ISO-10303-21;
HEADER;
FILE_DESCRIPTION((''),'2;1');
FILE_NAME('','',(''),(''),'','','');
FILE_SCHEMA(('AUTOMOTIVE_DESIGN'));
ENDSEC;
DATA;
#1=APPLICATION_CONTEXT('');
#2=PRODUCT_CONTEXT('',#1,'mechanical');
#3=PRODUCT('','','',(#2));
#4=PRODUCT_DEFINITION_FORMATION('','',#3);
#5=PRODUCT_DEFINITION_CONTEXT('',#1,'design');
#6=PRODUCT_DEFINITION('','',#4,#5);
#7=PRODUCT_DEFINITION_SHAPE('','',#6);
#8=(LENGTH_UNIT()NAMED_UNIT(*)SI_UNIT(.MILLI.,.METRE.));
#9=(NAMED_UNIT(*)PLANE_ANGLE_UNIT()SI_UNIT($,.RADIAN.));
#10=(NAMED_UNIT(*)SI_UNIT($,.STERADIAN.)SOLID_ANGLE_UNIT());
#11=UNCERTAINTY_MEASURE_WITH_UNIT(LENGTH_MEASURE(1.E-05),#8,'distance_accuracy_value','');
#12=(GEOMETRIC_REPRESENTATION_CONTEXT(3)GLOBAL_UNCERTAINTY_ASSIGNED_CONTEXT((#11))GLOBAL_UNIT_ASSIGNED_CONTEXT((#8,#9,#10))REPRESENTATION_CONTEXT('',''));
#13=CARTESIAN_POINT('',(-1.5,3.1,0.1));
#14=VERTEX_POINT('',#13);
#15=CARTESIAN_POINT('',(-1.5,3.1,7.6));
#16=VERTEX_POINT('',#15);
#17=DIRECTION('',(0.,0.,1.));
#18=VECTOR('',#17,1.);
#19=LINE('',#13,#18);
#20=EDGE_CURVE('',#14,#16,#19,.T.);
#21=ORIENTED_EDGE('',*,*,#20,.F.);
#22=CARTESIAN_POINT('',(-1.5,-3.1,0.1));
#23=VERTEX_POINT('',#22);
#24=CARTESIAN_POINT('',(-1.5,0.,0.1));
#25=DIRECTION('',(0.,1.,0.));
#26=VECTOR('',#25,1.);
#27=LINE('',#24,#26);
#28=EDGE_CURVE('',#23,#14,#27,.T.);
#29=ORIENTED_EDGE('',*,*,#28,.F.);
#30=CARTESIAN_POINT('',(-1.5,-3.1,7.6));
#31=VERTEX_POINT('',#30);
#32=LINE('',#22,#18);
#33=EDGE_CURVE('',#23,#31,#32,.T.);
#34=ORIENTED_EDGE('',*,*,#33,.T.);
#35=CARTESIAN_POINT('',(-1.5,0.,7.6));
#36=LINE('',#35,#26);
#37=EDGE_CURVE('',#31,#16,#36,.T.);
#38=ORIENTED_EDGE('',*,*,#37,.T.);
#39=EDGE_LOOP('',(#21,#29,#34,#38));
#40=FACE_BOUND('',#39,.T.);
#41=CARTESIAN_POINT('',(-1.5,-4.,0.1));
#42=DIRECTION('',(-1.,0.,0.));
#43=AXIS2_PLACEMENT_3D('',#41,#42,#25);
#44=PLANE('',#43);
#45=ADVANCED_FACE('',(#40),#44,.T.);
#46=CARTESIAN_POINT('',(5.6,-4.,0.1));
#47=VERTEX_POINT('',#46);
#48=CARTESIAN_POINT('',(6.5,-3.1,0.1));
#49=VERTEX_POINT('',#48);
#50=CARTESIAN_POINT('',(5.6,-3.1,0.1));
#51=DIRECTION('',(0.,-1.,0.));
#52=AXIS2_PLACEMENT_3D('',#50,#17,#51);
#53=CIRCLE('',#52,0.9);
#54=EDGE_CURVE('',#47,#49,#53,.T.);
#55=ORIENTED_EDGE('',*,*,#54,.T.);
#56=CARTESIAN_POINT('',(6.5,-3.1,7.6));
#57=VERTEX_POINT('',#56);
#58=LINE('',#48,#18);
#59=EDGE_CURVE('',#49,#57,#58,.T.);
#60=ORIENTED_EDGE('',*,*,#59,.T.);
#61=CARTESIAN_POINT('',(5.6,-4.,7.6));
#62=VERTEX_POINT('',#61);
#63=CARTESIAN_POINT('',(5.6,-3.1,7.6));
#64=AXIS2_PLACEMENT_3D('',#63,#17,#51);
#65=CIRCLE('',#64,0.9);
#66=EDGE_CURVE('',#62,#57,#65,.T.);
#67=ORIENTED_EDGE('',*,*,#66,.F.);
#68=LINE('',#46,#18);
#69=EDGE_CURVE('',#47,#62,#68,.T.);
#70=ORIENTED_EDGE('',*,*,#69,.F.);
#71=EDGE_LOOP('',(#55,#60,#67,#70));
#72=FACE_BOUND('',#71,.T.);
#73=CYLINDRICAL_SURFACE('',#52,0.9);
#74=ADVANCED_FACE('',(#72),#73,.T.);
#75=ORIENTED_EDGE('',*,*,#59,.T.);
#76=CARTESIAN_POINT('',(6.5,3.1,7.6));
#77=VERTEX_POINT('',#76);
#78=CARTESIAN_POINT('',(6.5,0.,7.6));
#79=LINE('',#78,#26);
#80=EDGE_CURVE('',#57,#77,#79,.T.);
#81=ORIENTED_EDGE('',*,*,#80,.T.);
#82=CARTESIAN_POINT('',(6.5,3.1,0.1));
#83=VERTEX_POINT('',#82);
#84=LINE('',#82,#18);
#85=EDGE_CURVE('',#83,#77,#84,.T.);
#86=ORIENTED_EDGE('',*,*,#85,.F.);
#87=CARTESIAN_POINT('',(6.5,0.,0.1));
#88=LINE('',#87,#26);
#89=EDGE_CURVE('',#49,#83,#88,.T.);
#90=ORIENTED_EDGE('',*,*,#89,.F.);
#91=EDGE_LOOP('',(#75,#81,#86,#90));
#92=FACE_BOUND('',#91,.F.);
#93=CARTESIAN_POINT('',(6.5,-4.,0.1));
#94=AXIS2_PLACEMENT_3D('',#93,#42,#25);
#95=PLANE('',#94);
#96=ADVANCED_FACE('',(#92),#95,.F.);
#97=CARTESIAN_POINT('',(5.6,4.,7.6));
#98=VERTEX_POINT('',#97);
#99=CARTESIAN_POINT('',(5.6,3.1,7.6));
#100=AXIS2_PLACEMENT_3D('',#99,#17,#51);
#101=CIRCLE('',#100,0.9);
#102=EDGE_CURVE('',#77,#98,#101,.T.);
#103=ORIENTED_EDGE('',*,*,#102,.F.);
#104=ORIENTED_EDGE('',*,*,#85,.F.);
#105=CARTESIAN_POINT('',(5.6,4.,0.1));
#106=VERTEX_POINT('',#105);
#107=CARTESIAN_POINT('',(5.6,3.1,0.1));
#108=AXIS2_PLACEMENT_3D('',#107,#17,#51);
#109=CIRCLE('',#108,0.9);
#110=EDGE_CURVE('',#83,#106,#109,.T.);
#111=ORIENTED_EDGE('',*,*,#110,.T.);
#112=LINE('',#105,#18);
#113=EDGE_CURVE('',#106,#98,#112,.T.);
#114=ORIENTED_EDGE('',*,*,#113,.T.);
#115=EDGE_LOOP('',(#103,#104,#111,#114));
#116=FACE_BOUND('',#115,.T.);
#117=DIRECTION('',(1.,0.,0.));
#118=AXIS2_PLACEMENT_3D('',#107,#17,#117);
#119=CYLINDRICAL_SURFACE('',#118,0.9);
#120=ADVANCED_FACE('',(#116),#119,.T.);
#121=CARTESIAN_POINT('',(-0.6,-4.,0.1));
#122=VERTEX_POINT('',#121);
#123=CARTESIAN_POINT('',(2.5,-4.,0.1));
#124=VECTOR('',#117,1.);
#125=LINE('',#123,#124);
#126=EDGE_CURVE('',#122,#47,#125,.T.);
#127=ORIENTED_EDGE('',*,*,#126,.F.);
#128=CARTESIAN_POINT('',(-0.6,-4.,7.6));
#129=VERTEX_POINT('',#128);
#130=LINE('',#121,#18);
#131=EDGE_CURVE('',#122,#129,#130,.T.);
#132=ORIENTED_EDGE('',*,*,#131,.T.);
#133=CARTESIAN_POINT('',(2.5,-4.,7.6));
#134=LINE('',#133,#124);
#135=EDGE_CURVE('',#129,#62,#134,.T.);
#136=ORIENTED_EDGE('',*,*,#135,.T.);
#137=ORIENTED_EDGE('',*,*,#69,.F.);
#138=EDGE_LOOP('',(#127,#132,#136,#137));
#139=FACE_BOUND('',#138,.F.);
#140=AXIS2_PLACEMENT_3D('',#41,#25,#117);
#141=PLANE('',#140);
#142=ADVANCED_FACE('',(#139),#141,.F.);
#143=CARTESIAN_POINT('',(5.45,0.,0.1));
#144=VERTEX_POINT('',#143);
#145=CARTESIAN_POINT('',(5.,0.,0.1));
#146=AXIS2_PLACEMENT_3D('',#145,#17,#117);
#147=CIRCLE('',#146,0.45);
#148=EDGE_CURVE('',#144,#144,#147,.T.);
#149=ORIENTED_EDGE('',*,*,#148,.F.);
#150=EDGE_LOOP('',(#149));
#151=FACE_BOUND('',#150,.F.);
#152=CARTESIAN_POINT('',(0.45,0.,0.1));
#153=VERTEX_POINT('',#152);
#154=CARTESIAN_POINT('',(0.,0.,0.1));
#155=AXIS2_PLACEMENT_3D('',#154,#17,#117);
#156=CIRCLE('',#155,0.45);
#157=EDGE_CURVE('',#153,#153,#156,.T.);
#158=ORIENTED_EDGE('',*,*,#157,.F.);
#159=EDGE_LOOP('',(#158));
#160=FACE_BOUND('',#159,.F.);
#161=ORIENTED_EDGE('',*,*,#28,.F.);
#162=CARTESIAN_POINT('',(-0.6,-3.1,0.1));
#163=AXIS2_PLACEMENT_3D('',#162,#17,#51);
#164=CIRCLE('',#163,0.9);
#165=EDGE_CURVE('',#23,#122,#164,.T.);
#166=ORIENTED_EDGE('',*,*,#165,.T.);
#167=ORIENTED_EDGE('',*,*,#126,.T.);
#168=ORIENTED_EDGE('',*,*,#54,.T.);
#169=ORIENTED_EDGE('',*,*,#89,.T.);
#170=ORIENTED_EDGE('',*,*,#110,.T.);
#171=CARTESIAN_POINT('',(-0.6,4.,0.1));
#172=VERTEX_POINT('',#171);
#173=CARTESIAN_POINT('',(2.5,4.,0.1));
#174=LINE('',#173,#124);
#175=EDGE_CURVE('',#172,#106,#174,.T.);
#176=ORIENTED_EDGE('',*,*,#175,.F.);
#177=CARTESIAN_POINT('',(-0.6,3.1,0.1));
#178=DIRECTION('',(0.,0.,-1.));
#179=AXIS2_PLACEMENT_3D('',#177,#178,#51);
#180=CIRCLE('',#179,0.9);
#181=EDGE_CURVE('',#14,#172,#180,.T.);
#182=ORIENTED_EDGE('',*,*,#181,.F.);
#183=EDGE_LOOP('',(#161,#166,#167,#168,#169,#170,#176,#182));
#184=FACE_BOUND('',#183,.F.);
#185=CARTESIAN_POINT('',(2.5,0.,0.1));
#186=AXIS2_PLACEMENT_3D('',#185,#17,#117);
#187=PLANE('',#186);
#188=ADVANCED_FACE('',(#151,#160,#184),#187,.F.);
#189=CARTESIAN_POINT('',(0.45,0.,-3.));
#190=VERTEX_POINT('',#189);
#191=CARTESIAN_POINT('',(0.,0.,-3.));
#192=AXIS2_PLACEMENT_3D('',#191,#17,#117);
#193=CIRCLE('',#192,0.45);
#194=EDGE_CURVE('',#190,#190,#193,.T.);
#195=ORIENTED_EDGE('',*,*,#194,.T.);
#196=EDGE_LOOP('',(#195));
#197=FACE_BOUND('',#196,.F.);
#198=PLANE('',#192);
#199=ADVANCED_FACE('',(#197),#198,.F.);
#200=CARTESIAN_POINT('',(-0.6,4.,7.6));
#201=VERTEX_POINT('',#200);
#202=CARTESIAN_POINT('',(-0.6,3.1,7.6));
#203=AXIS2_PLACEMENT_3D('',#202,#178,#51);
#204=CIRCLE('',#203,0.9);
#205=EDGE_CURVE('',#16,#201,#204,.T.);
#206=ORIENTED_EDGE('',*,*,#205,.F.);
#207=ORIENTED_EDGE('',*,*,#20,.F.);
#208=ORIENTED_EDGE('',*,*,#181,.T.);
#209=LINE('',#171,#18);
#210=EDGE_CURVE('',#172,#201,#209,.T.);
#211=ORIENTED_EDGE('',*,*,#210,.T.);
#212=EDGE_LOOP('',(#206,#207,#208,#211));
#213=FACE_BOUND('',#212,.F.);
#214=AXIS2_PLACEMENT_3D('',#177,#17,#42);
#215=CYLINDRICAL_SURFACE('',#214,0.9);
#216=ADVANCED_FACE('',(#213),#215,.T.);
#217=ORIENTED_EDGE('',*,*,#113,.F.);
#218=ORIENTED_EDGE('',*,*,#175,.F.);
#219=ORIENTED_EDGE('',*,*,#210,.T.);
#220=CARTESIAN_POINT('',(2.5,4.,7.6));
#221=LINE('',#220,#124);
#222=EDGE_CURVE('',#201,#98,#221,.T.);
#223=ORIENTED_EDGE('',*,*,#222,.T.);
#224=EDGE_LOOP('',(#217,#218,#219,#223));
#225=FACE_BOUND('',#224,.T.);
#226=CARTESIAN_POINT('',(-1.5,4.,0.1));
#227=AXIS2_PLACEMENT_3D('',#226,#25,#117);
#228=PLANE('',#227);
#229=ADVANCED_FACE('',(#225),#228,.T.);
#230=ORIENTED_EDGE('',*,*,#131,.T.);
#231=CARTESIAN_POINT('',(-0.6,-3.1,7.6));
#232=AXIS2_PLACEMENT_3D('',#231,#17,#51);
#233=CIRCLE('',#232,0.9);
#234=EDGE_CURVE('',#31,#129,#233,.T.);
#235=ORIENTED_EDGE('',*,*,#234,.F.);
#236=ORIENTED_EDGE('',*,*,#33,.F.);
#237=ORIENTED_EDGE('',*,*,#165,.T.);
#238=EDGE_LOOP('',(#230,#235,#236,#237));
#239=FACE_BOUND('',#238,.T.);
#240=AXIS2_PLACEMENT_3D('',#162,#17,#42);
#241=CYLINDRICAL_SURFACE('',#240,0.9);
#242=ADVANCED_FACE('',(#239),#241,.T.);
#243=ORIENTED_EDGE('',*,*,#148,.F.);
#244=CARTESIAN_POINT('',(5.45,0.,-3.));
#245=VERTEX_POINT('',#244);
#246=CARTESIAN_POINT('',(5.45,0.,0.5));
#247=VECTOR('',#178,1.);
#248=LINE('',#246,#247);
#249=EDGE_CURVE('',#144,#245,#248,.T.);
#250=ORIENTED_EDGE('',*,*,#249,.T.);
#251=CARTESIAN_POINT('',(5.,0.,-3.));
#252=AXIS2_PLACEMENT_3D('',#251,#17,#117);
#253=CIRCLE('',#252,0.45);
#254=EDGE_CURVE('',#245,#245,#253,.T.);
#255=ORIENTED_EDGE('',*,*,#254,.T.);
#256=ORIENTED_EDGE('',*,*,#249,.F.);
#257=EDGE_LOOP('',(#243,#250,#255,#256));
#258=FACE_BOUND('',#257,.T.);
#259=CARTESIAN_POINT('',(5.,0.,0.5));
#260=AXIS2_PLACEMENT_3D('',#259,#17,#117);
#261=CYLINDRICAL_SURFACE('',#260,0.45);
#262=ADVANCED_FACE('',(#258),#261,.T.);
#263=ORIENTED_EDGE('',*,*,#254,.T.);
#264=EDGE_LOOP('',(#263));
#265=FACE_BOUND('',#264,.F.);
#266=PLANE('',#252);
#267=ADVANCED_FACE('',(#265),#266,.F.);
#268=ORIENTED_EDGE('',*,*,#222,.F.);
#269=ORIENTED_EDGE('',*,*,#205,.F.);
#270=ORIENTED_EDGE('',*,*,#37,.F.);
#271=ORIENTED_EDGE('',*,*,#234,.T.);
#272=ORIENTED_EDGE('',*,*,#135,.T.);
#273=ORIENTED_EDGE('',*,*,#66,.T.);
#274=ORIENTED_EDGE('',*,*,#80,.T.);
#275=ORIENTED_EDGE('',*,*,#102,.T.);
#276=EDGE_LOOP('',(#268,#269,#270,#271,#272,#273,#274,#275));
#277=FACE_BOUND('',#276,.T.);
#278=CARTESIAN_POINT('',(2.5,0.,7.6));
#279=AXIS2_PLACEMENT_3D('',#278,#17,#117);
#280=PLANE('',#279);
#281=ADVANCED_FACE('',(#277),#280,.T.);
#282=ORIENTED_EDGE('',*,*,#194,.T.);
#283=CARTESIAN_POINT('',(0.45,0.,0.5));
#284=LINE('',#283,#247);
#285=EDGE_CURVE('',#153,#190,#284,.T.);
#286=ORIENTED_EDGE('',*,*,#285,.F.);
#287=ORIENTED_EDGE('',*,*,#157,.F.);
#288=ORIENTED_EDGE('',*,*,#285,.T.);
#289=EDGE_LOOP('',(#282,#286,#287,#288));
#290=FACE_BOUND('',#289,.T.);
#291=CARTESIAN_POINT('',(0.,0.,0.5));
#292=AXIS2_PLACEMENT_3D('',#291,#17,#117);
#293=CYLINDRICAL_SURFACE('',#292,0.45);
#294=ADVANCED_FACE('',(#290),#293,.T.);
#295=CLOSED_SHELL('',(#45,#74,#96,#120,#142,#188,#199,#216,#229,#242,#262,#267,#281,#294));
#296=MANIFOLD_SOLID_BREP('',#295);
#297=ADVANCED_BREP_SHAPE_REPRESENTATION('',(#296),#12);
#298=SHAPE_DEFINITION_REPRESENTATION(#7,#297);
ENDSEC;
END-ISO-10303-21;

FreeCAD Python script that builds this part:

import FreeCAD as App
import Part
import Sketcher
from FreeCAD import Vector
Q = App.Units.Quantity


def edges_at(feature, points):
    """Names of the edges that pass closest to the given points."""
    edges = feature.Shape.Edges
    near = lambda p: min(range(len(edges)), key=lambda i: edges[i].distToShape(Part.Vertex(*p))[0])
    return sorted({f"Edge{near(p) + 1}" for p in points})


def add_polygon(sketch, points):
    """Adds a closed chain of lines whose ends are joined by coincident constraints."""
    first, n = sketch.GeometryCount, len(points)
    for a, b in zip(points, points[1:] + points[:1]):
        sketch.addGeometry(Part.LineSegment(App.Vector(*a, 0), App.Vector(*b, 0)), False)
    for i in range(n):
        sketch.addConstraint(Sketcher.Constraint("Coincident", first + i, 2, first + (i + 1) % n, 1))

doc = App.newDocument("Part")
body = doc.addObject("PartDesign::Body", "Body")
body.AllowCompound = True

# Sketch on XY plane
sketch1 = body.newObject("Sketcher::SketchObject", "Sketch")
sketch1.AttachmentSupport = (doc.getObject("XY_Plane"), [""])
sketch1.MapMode = "FlatFace"
sketch1.AttachmentOffset = App.Placement(Vector(0, 0, 0.5), App.Rotation())
sketch1.addGeometry(Part.Circle(Vector(0, 0, 0), Vector(0, 0, 1), 0.45), False)
sketch1.addGeometry(Part.Circle(Vector(5, 0, 0), Vector(0, 0, 1), 0.45), False)
sketch1.addConstraint(Sketcher.Constraint("Coincident", 0, 3, -1, 1))
sketch1.addConstraint(Sketcher.Constraint("Equal", 0, 1))
sketch1.addConstraint(Sketcher.Constraint("PointOnObject", 1, 3, -1))
sketch1.addConstraint(Sketcher.Constraint("Diameter", 0, Q("0.9 mm")))
sketch1.addConstraint(Sketcher.Constraint("DistanceX", -1, 1, 1, 3, Q("5 mm")))
pad1 = body.newObject("PartDesign::Pad", "Pad")
pad1.Profile = sketch1
pad1.Length = 3.5
pad1.Reversed = True
body2 = doc.addObject("PartDesign::Body", "Body001")

# Sketch on XY plane
sketch2 = body2.newObject("Sketcher::SketchObject", "Sketch001")
sketch2.AttachmentSupport = (doc.getObject("XY_Plane001"), [""])
sketch2.MapMode = "FlatFace"
sketch2.AttachmentOffset = App.Placement(Vector(0, 0, 0.1), App.Rotation())
add_polygon(sketch2, [(-2, 4), (-2, -4), (6, -4), (6, 4)])  # lines 0-3
sketch2.addConstraint(Sketcher.Constraint("Vertical", 0))
sketch2.addConstraint(Sketcher.Constraint("Horizontal", 1))
sketch2.addConstraint(Sketcher.Constraint("Vertical", 2))
sketch2.addConstraint(Sketcher.Constraint("Horizontal", 3))
sketch2.addConstraint(Sketcher.Constraint("Equal", 3, 0))
sketch2.addConstraint(Sketcher.Constraint("DistanceX", 1, 1, 1, 2, Q("8 mm")))
sketch2.addConstraint(Sketcher.Constraint("DistanceY", 0, 2, -1, 1, Q("4 mm")))
sketch2.addConstraint(Sketcher.Constraint("DistanceX", 0, 2, -1, 1, Q("1.5 mm")))
pad2 = body2.newObject("PartDesign::Pad", "Pad001")
pad2.Profile = sketch2
pad2.Length = 7.5
doc.recompute()

fillet = body2.newObject("PartDesign::Fillet", "Fillet")
fillet.Base = (pad2, edges_at(pad2, [
    (6.5, -4, 3.85),
    (6.5, 4, 3.85),
    (-1.5, -4, 3.85),
    (-1.5, 4, 3.85),
]))
fillet.Radius = 0.9
doc.recompute()

boolean = body2.newObject("PartDesign::Boolean", "Boolean")
boolean.Type = "Fuse"
boolean.addObjects([body])

doc.recompute()
